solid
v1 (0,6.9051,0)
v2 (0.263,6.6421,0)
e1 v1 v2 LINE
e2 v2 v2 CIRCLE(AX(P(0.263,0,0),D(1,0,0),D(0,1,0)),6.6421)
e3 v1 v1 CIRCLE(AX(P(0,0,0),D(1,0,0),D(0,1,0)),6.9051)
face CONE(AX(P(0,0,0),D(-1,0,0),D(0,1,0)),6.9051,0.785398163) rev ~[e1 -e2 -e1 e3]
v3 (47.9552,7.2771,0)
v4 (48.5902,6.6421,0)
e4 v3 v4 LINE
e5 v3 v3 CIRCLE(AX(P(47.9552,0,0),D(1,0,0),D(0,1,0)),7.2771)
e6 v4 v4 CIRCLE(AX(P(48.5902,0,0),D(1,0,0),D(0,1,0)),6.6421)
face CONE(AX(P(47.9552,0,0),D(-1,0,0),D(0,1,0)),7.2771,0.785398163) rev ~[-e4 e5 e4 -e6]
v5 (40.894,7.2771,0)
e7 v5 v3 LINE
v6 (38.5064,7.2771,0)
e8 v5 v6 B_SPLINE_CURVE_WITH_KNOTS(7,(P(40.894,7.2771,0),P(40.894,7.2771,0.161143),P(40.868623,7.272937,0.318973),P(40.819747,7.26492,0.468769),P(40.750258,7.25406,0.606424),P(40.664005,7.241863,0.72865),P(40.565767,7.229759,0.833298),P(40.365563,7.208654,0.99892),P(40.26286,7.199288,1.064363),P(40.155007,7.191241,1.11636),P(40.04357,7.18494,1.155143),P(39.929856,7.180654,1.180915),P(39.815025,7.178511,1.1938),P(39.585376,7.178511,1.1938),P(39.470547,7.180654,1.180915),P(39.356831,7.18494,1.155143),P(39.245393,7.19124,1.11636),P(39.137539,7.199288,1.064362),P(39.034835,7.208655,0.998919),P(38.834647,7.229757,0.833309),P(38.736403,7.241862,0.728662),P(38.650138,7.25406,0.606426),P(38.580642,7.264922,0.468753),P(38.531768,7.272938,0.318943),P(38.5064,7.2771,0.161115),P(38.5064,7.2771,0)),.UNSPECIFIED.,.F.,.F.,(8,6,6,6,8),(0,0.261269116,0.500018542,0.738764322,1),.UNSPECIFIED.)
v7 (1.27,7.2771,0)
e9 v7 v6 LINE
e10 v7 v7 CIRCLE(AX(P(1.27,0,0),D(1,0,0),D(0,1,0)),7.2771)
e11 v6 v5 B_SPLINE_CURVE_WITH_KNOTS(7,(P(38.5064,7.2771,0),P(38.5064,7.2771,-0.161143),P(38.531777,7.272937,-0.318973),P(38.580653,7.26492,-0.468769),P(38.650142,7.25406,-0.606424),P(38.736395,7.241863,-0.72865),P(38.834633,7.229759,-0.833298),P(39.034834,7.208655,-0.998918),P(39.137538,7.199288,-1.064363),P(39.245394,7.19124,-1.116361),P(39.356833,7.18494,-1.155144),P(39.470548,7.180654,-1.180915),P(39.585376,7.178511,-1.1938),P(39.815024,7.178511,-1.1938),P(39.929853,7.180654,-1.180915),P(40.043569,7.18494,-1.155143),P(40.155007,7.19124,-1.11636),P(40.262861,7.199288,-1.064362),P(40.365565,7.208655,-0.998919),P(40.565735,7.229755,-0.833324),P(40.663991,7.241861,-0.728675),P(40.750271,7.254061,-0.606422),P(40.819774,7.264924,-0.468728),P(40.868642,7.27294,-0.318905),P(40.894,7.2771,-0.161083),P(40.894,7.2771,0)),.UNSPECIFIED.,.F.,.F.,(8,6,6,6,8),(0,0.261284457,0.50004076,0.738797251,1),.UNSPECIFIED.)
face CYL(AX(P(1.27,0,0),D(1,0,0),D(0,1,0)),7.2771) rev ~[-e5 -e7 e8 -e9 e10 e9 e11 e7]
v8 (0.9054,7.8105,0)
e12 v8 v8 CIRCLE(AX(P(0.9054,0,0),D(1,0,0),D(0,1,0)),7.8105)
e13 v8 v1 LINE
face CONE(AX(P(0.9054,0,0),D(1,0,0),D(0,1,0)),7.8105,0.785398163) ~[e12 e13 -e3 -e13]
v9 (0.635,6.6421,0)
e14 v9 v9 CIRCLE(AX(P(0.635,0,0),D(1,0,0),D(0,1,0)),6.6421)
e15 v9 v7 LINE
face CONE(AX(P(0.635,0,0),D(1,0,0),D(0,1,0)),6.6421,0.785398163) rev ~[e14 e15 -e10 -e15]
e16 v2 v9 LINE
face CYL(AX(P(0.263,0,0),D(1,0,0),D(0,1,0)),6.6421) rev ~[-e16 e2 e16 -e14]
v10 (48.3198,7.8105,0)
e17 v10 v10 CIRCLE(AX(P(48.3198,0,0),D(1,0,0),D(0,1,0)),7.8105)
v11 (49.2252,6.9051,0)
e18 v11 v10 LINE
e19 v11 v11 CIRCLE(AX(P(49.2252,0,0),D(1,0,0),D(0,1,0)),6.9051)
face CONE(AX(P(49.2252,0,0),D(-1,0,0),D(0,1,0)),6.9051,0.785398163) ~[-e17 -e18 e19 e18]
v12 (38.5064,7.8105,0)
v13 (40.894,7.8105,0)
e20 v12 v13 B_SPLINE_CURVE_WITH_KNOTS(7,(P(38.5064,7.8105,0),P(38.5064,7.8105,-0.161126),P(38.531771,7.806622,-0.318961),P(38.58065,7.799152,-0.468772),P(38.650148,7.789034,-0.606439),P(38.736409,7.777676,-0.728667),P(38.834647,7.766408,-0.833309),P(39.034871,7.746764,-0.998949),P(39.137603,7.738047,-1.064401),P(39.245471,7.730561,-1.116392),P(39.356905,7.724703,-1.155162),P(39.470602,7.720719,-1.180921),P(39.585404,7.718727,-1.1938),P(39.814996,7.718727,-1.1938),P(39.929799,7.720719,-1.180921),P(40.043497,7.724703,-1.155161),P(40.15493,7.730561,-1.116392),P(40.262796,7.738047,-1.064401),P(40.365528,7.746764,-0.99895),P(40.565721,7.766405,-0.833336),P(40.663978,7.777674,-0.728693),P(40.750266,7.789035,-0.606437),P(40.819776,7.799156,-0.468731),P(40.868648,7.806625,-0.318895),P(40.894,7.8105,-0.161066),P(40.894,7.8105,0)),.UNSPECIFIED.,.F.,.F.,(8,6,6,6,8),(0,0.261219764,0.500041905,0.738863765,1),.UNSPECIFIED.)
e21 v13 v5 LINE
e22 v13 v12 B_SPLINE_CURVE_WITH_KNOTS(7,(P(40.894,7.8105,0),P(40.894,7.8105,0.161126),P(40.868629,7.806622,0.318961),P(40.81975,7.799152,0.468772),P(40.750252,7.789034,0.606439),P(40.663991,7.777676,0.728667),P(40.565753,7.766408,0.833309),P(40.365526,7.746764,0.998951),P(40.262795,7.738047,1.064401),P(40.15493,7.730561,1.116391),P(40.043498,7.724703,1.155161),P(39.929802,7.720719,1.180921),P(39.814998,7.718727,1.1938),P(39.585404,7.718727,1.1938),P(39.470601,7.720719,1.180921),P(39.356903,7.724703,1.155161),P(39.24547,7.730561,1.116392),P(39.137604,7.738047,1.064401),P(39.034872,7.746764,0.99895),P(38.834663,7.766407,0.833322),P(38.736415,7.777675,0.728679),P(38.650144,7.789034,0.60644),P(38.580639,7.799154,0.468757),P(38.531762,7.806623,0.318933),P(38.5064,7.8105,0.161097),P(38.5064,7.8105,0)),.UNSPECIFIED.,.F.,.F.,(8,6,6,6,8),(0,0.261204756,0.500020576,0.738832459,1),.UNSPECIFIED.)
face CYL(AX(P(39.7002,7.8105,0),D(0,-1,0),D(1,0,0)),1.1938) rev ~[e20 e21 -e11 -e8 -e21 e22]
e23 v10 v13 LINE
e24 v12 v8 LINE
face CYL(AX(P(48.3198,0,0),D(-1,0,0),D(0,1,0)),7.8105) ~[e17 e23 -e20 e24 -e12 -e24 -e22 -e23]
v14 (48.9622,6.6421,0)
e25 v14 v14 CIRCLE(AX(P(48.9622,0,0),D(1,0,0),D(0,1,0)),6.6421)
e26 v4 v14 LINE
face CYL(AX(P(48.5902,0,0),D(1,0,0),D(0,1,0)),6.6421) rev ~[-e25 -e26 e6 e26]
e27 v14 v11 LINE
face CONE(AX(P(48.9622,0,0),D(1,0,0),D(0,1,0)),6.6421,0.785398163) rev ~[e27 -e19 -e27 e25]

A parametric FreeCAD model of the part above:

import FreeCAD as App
import Part
import Sketcher

V = App.Vector
Q = App.Units.Quantity


def add_polygon(sketch, points):
    """Adds a closed chain of lines whose ends are joined by coincident constraints."""
    first, n = sketch.GeometryCount, len(points)
    for a, b in zip(points, points[1:] + points[:1]):
        sketch.addGeometry(Part.LineSegment(App.Vector(*a, 0), App.Vector(*b, 0)), False)
    for i in range(n):
        sketch.addConstraint(Sketcher.Constraint("Coincident", first + i, 2, first + (i + 1) % n, 1))

doc = App.newDocument("Part")
body = doc.addObject("PartDesign::Body", "Body")

sketch1 = body.newObject("Sketcher::SketchObject", "Sketch")
sketch1.AttachmentSupport = (doc.getObject("XY_Plane"), [""])
sketch1.MapMode = "FlatFace"
add_polygon(sketch1, [(0.9054, 7.8105), (0, 6.9051), (0.263, 6.6421), (0.635, 6.6421), (1.27, 7.2771), (47.9552, 7.2771), (48.5902, 6.6421), (48.9622, 6.6421), (49.2252, 6.9051), (48.3198, 7.8105)])
sketch1.addConstraint([
    Sketcher.Constraint("Horizontal", 2),
    Sketcher.Constraint("Horizontal", 4),
    Sketcher.Constraint("Horizontal", 6),
    Sketcher.Constraint("Horizontal", 9),
    Sketcher.Constraint("PointOnObject", 0, 2, -2),
    Sketcher.Constraint("Perpendicular", 0, 1),
    Sketcher.Constraint("Perpendicular", 1, 3),
    Sketcher.Constraint("Perpendicular", 3, 5),
    Sketcher.Constraint("Perpendicular", 5, 7),
    Sketcher.Constraint("Perpendicular", 7, 8),
    Sketcher.Constraint("Horizontal", 2, 2, 5, 2),
    Sketcher.Constraint("Horizontal", 0, 2, 7, 2),
    Sketcher.Constraint("Equal", 2, 6),
    Sketcher.Constraint("Equal", 3, 5),
    Sketcher.Constraint("DistanceX", 4, 1, 4, 2, Q("1.838 in")),
    Sketcher.Constraint("DistanceX", -1, 1, 3, 2, Q("0.05 in")),
    Sketcher.Constraint("DistanceX", 9, 2, 9, 1, Q("1.8667 in")),
    Sketcher.Constraint("DistanceX", -1, 1, 2, 2, Q("0.025 in")),
    Sketcher.Constraint("DistanceY", 4, 2, 8, 2, Q("0.021 in")),
    Sketcher.Constraint("DistanceY", -1, 1, 1, 2, Q("0.2615 in")),
])
revolution = body.newObject("PartDesign::Revolution", "Revolution")
revolution.Profile = sketch1
revolution.ReferenceAxis = (sketch1, ["H_Axis"])
revolution.Angle = 360

sketch2 = body.newObject("Sketcher::SketchObject", "Sketch001")
sketch2.AttachmentSupport = (doc.getObject("XY_Plane"), [""])
sketch2.MapMode = "FlatFace"
add_polygon(sketch2, [(39.7002, 7.8105), (39.7002, 0), (40.894, 0), (40.894, 7.8105)])
sketch2.addGeometry(Part.LineSegment(V(39.7002, 7.8105, 0), V(39.7002, 0, 0)), True)
sketch2.addConstraint([
    Sketcher.Constraint("Vertical", 0),
    Sketcher.Constraint("Horizontal", 1),
    Sketcher.Constraint("Vertical", 2),
    Sketcher.Constraint("Horizontal", 3),
    Sketcher.Constraint("Vertical", 4),
    Sketcher.Constraint("Coincident", 4, 1, 3, 2),
    Sketcher.Constraint("PointOnObject", 0, 2, -1),
    Sketcher.Constraint("PointOnObject", 4, 2, -1),
    Sketcher.Constraint("DistanceX", 1, 1, 1, 2, Q("0.047 in")),
    Sketcher.Constraint("DistanceX", -1, 1, 1, 2, Q("1.61 in")),
    Sketcher.Constraint("DistanceY", 0, 2, 0, 1, Q("0.3075 in")),
])
groove = body.newObject("PartDesign::Groove", "Groove")
groove.Profile = sketch2
groove.ReferenceAxis = (sketch2, ["Axis0"])
groove.Angle = 360

doc.recompute()
